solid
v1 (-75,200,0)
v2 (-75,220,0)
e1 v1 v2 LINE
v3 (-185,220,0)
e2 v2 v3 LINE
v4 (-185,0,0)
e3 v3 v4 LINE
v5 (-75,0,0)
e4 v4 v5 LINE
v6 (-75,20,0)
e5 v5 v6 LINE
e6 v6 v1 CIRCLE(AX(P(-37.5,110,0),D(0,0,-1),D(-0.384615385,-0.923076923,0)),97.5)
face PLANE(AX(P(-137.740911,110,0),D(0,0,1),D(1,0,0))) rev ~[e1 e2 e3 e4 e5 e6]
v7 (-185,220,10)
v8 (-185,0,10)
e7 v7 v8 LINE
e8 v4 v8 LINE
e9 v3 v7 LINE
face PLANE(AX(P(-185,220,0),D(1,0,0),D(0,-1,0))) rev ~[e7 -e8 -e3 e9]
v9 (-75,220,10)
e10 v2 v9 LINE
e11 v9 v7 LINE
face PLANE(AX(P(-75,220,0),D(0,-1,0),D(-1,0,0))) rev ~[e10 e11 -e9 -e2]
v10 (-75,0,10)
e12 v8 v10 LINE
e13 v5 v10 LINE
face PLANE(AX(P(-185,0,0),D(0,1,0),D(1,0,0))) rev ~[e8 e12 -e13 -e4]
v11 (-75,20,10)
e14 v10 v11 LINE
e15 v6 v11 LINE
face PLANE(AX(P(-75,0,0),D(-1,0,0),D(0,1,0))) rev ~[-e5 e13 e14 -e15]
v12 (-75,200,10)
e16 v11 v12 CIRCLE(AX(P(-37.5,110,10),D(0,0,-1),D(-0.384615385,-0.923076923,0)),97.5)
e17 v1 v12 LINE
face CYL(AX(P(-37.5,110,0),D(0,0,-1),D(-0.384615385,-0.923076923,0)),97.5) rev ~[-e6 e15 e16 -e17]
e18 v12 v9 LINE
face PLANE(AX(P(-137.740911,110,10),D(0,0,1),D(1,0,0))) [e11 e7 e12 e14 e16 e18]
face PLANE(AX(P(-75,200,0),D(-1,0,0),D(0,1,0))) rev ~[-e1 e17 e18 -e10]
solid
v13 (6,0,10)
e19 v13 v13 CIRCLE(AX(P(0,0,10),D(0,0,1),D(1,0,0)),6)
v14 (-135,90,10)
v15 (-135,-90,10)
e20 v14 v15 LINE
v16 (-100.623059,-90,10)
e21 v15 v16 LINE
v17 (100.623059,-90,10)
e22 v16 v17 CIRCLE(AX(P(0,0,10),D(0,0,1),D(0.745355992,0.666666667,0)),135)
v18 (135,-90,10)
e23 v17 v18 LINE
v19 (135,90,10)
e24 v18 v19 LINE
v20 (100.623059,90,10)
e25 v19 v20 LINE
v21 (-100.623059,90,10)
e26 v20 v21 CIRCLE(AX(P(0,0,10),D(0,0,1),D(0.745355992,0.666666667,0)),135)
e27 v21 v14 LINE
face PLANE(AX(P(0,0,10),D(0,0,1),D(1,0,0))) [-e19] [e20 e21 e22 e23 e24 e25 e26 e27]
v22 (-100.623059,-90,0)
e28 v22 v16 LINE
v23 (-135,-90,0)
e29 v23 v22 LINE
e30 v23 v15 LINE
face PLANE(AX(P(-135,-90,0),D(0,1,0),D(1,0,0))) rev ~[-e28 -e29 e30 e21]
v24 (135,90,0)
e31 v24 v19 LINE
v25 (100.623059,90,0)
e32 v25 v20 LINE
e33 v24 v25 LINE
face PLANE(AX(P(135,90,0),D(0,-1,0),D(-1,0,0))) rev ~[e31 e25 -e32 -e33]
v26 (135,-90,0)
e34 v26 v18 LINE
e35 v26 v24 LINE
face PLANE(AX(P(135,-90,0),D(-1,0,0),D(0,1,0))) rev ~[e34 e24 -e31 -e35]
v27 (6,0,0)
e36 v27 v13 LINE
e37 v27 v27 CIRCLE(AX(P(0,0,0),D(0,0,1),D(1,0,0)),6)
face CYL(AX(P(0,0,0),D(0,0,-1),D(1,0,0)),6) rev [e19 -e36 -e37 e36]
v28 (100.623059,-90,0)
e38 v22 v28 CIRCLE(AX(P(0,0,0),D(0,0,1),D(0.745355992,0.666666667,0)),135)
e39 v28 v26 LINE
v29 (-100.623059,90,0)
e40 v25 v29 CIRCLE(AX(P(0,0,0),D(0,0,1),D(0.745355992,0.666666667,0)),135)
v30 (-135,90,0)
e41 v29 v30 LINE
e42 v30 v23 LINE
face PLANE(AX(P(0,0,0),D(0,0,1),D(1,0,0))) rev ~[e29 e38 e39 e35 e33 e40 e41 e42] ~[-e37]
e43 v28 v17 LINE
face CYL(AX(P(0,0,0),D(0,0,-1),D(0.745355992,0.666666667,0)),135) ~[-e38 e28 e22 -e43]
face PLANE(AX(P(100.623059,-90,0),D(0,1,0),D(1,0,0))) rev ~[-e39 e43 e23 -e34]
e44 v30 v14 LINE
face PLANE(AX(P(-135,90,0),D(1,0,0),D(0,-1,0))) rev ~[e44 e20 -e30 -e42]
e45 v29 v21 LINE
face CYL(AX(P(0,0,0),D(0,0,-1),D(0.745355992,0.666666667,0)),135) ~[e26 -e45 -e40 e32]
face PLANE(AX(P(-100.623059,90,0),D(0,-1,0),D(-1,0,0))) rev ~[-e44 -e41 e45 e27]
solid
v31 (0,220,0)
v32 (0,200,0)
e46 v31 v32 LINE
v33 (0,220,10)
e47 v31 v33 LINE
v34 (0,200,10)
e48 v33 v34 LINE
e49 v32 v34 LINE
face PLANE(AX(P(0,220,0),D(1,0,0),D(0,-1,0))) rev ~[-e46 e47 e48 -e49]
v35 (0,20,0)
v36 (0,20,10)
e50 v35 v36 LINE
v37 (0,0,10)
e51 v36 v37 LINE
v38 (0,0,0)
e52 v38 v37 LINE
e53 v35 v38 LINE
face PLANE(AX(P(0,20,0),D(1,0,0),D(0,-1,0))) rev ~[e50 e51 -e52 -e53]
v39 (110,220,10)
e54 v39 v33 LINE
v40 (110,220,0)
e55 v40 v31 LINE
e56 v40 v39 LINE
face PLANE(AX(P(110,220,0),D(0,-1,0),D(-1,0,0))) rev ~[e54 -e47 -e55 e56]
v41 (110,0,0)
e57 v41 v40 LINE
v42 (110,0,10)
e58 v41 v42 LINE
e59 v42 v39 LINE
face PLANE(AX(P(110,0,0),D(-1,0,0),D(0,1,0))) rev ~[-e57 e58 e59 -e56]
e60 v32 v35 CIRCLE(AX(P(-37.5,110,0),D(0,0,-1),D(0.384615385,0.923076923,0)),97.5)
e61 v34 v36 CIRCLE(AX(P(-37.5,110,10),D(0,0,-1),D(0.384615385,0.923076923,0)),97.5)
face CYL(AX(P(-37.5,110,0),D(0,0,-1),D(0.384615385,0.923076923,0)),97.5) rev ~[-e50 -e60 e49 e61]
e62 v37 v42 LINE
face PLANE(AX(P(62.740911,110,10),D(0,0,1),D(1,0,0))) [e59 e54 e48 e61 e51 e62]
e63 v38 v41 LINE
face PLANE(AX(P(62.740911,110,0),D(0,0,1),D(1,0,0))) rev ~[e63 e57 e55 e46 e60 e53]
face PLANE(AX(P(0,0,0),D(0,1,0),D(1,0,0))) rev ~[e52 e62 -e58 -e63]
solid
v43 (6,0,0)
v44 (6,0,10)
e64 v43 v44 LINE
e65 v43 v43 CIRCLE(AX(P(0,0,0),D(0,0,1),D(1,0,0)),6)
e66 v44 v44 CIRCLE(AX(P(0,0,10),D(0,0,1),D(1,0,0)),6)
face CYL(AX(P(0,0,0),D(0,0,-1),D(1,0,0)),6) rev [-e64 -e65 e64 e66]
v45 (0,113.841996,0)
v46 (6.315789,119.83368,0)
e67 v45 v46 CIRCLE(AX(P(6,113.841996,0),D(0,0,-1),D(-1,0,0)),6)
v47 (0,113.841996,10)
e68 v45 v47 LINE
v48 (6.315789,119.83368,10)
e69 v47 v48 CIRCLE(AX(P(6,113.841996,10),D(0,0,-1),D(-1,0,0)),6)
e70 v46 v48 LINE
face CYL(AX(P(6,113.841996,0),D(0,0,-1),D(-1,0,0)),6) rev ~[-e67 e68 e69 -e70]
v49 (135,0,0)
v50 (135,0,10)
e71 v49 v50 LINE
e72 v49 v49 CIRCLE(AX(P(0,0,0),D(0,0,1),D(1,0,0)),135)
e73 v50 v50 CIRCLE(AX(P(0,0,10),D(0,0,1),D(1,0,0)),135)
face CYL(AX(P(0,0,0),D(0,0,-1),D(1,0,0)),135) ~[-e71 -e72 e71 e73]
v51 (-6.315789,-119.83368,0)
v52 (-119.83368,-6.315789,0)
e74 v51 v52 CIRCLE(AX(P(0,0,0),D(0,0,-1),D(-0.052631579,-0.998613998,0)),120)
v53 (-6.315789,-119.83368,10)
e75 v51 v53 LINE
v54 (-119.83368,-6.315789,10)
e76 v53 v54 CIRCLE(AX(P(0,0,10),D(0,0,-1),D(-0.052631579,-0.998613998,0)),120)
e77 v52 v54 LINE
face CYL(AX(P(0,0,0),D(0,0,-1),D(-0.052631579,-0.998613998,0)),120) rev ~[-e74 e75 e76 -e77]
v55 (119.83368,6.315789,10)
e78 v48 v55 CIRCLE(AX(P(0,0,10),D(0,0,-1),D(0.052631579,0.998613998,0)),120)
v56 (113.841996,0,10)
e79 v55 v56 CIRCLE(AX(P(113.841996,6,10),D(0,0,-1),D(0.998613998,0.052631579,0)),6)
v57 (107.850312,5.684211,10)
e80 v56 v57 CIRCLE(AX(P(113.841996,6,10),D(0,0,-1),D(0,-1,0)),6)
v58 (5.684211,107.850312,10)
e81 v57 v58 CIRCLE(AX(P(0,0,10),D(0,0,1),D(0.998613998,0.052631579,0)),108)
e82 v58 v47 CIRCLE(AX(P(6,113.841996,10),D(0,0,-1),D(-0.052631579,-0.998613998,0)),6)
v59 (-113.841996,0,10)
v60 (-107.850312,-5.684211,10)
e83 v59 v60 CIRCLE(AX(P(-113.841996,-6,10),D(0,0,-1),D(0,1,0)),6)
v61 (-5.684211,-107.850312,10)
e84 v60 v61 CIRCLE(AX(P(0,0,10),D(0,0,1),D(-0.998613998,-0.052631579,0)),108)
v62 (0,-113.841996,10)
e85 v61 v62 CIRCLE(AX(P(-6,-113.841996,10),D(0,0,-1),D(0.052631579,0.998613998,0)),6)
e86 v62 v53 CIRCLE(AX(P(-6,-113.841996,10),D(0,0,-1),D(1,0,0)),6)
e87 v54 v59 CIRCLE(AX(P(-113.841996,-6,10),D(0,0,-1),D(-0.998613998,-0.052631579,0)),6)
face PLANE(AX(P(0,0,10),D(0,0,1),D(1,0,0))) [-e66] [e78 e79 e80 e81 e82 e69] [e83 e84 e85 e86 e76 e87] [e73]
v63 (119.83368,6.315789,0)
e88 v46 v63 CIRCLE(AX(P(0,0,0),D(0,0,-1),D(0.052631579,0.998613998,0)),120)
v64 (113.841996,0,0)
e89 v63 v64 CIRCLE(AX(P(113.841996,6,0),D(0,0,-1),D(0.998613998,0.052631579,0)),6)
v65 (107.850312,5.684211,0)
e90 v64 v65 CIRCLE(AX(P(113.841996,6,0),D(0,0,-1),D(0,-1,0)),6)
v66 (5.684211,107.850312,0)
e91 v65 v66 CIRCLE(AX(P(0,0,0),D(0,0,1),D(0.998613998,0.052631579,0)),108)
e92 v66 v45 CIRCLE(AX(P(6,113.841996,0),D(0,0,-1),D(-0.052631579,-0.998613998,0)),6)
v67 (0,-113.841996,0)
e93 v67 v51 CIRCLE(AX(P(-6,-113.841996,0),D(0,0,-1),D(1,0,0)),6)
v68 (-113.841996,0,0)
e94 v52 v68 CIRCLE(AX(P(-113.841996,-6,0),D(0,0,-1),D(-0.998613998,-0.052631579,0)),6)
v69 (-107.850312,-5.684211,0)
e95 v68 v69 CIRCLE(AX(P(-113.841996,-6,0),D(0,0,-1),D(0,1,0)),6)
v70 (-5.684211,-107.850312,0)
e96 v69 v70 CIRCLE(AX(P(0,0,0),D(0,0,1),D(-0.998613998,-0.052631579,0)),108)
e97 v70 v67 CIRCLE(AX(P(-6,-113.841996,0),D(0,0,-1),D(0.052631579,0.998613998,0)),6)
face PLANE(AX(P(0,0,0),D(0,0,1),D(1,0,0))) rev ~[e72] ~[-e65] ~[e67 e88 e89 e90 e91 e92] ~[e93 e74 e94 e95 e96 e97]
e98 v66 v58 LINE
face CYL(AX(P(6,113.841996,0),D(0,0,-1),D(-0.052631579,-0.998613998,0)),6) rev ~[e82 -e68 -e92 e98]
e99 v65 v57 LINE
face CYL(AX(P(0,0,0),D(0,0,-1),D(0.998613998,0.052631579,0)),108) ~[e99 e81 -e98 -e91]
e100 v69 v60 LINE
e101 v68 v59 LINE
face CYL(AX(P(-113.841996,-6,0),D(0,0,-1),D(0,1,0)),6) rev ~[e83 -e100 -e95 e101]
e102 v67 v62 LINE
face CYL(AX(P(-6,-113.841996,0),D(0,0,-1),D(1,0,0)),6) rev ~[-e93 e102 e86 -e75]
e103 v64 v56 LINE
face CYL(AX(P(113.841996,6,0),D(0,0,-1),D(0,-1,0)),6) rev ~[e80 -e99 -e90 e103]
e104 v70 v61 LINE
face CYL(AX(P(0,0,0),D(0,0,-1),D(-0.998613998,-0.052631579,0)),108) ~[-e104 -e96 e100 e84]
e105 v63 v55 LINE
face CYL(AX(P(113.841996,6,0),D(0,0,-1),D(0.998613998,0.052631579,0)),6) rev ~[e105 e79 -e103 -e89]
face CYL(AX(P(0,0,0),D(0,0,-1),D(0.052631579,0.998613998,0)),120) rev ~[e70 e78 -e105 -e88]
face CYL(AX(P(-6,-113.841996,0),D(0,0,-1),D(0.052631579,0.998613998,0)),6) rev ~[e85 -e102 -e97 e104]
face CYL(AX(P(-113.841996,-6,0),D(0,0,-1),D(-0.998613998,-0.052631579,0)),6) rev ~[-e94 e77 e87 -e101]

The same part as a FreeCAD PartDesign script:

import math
import FreeCAD as App
import Part
import Sketcher

doc = App.newDocument("Part")
body = doc.addObject("PartDesign::Body", "Body")

# Sketch on XY plane
sketch1 = body.newObject("Sketcher::SketchObject", "Sketch")
sketch1.AttachmentSupport = (doc.getObject("XY_Plane"), [""])
sketch1.MapMode = "FlatFace"
sketch1.addGeometry(Part.LineSegment(App.Vector(0, 20, 0), App.Vector(0, 0, 0)), False)
sketch1.addGeometry(Part.LineSegment(App.Vector(0, 0, 0), App.Vector(110, 0, 0)), False)
sketch1.addGeometry(Part.LineSegment(App.Vector(110, 0, 0), App.Vector(110, 220, 0)), False)
sketch1.addGeometry(Part.LineSegment(App.Vector(110, 220, 0), App.Vector(0, 220, 0)), False)
sketch1.addGeometry(Part.LineSegment(App.Vector(0, 220, 0), App.Vector(0, 200, 0)), False)
sketch1.addGeometry(Part.ArcOfCircle(Part.Circle(App.Vector(-38, 110, 0), App.Vector(0, 0, 1), 98), math.radians(-67), math.radians(67)), False)
sketch1.addConstraint(Sketcher.Constraint("Coincident", 0, 2, 1, 1))
sketch1.addConstraint(Sketcher.Constraint("Coincident", 1, 2, 2, 1))
sketch1.addConstraint(Sketcher.Constraint("Coincident", 2, 2, 3, 1))
sketch1.addConstraint(Sketcher.Constraint("Coincident", 3, 2, 4, 1))
sketch1.addConstraint(Sketcher.Constraint("Coincident", 4, 2, 5, 2))
sketch1.addConstraint(Sketcher.Constraint("Coincident", 5, 1, 0, 1))
sketch1.addConstraint(Sketcher.Constraint("Vertical", 0))
sketch1.addConstraint(Sketcher.Constraint("Horizontal", 1))
sketch1.addConstraint(Sketcher.Constraint("Vertical", 2))
sketch1.addConstraint(Sketcher.Constraint("Horizontal", 3))
sketch1.addConstraint(Sketcher.Constraint("Vertical", 4))
sketch1.addConstraint(Sketcher.Constraint("Coincident", 0, 2, -1, 1))
sketch1.addConstraint(Sketcher.Constraint("PointOnObject", 3, 2, -2))
sketch1.addConstraint(Sketcher.Constraint("Equal", 0, 4))
sketch1.addConstraint(Sketcher.Constraint("Radius", 5, 97.5))
sketch1.addConstraint(Sketcher.Constraint("DistanceX", 1, 1, 1, 2, 110.0))
sketch1.addConstraint(Sketcher.Constraint("DistanceY", 0, 2, 0, 1, 20.0))
sketch1.addConstraint(Sketcher.Constraint("DistanceY", 2, 1, 2, 2, 220.0))
pad1 = body.newObject("PartDesign::Pad", "Pad")
pad1.Profile = sketch1
pad1.Length = 10
body2 = doc.addObject("PartDesign::Body", "Body001")

# Sketch on XY plane
sketch2 = body2.newObject("Sketcher::SketchObject", "Sketch001")
sketch2.AttachmentSupport = (doc.getObject("XY_Plane001"), [""])
sketch2.MapMode = "FlatFace"
sketch2.addGeometry(Part.LineSegment(App.Vector(-75, 0, 0), App.Vector(-75, 20, 0)), False)
sketch2.addGeometry(Part.ArcOfCircle(Part.Circle(App.Vector(-38, 110, 0), App.Vector(0, 0, 1), 98), math.radians(113), math.radians(247)), False)
sketch2.addGeometry(Part.LineSegment(App.Vector(-75, 200, 0), App.Vector(-75, 220, 0)), False)
sketch2.addGeometry(Part.LineSegment(App.Vector(-75, 220, 0), App.Vector(-185, 220, 0)), False)
sketch2.addGeometry(Part.LineSegment(App.Vector(-185, 220, 0), App.Vector(-185, 0, 0)), False)
sketch2.addGeometry(Part.LineSegment(App.Vector(-185, 0, 0), App.Vector(-75, 0, 0)), False)
sketch2.addConstraint(Sketcher.Constraint("Coincident", 0, 2, 1, 2))
sketch2.addConstraint(Sketcher.Constraint("Coincident", 1, 1, 2, 1))
sketch2.addConstraint(Sketcher.Constraint("Coincident", 2, 2, 3, 1))
sketch2.addConstraint(Sketcher.Constraint("Coincident", 3, 2, 4, 1))
sketch2.addConstraint(Sketcher.Constraint("Coincident", 4, 2, 5, 1))
sketch2.addConstraint(Sketcher.Constraint("Coincident", 5, 2, 0, 1))
sketch2.addConstraint(Sketcher.Constraint("Vertical", 0))
sketch2.addConstraint(Sketcher.Constraint("Vertical", 2))
sketch2.addConstraint(Sketcher.Constraint("Horizontal", 3))
sketch2.addConstraint(Sketcher.Constraint("Vertical", 4))
sketch2.addConstraint(Sketcher.Constraint("Horizontal", 5))
sketch2.addConstraint(Sketcher.Constraint("PointOnObject", 4, 2, -1))
sketch2.addConstraint(Sketcher.Constraint("Vertical", 0, 2, 1, 1))
sketch2.addConstraint(Sketcher.Constraint("Equal", 0, 2))
sketch2.addConstraint(Sketcher.Constraint("Radius", 1, 97.5))
sketch2.addConstraint(Sketcher.Constraint("DistanceX", 3, 2, 3, 1, 110.0))
sketch2.addConstraint(Sketcher.Constraint("DistanceY", 0, 1, 0, 2, 20.0))
sketch2.addConstraint(Sketcher.Constraint("DistanceY", 4, 2, 4, 1, 220.0))
sketch2.addConstraint(Sketcher.Constraint("DistanceX", 0, 2, -1, 1, 75.0))
pad2 = body2.newObject("PartDesign::Pad", "Pad001")
pad2.Profile = sketch2
pad2.Length = 10
body3 = doc.addObject("PartDesign::Body", "Body002")

# Sketch on XY plane
sketch3 = body3.newObject("Sketcher::SketchObject", "Sketch002")
sketch3.AttachmentSupport = (doc.getObject("XY_Plane002"), [""])
sketch3.MapMode = "FlatFace"
sketch3.addGeometry(Part.Circle(App.Vector(0, 0, 0), App.Vector(0, 0, 1), 135), False)
sketch3.addGeometry(Part.ArcOfCircle(Part.Circle(App.Vector(-114, -6, 0), App.Vector(0, 0, 1), 6), math.radians(3), math.radians(90)), False)
sketch3.addGeometry(Part.ArcOfCircle(Part.Circle(App.Vector(0, 0, 0), App.Vector(0, 0, 1), 108), math.radians(-177), math.radians(-93)), False)
sketch3.addGeometry(Part.ArcOfCircle(Part.Circle(App.Vector(-6, -114, 0), App.Vector(0, 0, 1), 6), math.radians(0), math.radians(87)), False)
sketch3.addGeometry(Part.ArcOfCircle(Part.Circle(App.Vector(-6, -114, 0), App.Vector(0, 0, 1), 6), math.radians(-93), math.radians(0)), False)
sketch3.addGeometry(Part.ArcOfCircle(Part.Circle(App.Vector(0, 0, 0), App.Vector(0, 0, 1), 120), math.radians(-177), math.radians(-93)), False)
sketch3.addGeometry(Part.ArcOfCircle(Part.Circle(App.Vector(-114, -6, 0), App.Vector(0, 0, 1), 6), math.radians(90), math.radians(183)), False)
sketch3.addGeometry(Part.Circle(App.Vector(0, 0, 0), App.Vector(0, 0, 1), 6), False)
sketch3.addGeometry(Part.ArcOfCircle(Part.Circle(App.Vector(6, 114, 0), App.Vector(0, 0, 1), 6), math.radians(87), math.radians(180)), False)
sketch3.addGeometry(Part.ArcOfCircle(Part.Circle(App.Vector(0, 0, 0), App.Vector(0, 0, 1), 120), math.radians(3), math.radians(87)), False)
sketch3.addGeometry(Part.ArcOfCircle(Part.Circle(App.Vector(114, 6, 0), App.Vector(0, 0, 1), 6), math.radians(-90), math.radians(3)), False)
sketch3.addGeometry(Part.ArcOfCircle(Part.Circle(App.Vector(114, 6, 0), App.Vector(0, 0, 1), 6), math.radians(-177), math.radians(-90)), False)
sketch3.addGeometry(Part.ArcOfCircle(Part.Circle(App.Vector(0, 0, 0), App.Vector(0, 0, 1), 108), math.radians(3), math.radians(87)), False)
sketch3.addGeometry(Part.ArcOfCircle(Part.Circle(App.Vector(6, 114, 0), App.Vector(0, 0, 1), 6), math.radians(180), math.radians(267)), False)
sketch3.addConstraint(Sketcher.Constraint("Tangent", 1, 1, 2, 1))
sketch3.addConstraint(Sketcher.Constraint("Tangent", 2, 2, 3, 2))
sketch3.addConstraint(Sketcher.Constraint("Tangent", 3, 1, 4, 2))
sketch3.addConstraint(Sketcher.Constraint("Tangent", 4, 1, 5, 2))
sketch3.addConstraint(Sketcher.Constraint("Tangent", 5, 1, 6, 2))
sketch3.addConstraint(Sketcher.Constraint("Tangent", 6, 1, 1, 2))
sketch3.addConstraint(Sketcher.Constraint("Tangent", 8, 1, 9, 2))
sketch3.addConstraint(Sketcher.Constraint("Tangent", 9, 1, 10, 2))
sketch3.addConstraint(Sketcher.Constraint("Tangent", 10, 1, 11, 2))
sketch3.addConstraint(Sketcher.Constraint("Tangent", 11, 1, 12, 1))
sketch3.addConstraint(Sketcher.Constraint("Tangent", 12, 2, 13, 2))
sketch3.addConstraint(Sketcher.Constraint("Tangent", 13, 1, 8, 2))
sketch3.addConstraint(Sketcher.Constraint("Coincident", 0, 3, -1, 1))
sketch3.addConstraint(Sketcher.Constraint("Coincident", 2, 3, -1, 1))
sketch3.addConstraint(Sketcher.Constraint("Coincident", 5, 3, -1, 1))
sketch3.addConstraint(Sketcher.Constraint("Coincident", 7, 3, -1, 1))
sketch3.addConstraint(Sketcher.Constraint("Coincident", 9, 3, -1, 1))
sketch3.addConstraint(Sketcher.Constraint("Coincident", 12, 3, -1, 1))
sketch3.addConstraint(Sketcher.Constraint("Equal", 1, 3))
sketch3.addConstraint(Sketcher.Constraint("Equal", 3, 4))
sketch3.addConstraint(Sketcher.Constraint("Equal", 6, 7))
sketch3.addConstraint(Sketcher.Constraint("Equal", 7, 8))
sketch3.addConstraint(Sketcher.Constraint("Equal", 5, 9))
sketch3.addConstraint(Sketcher.Constraint("Equal", 8, 10))
sketch3.addConstraint(Sketcher.Constraint("Equal", 10, 11))
sketch3.addConstraint(Sketcher.Constraint("Symmetric", 6, 1, 10, 1, -1, 1))
sketch3.addConstraint(Sketcher.Constraint("Symmetric", 3, 1, 13, 1, -1, 1))
sketch3.addConstraint(Sketcher.Constraint("PointOnObject", 3, 1, -2))
sketch3.addConstraint(Sketcher.Constraint("PointOnObject", 6, 1, -1))
sketch3.addConstraint(Sketcher.Constraint("Horizontal", 4, 3, 3, 1))
sketch3.addConstraint(Sketcher.Constraint("Vertical", 1, 3, 6, 1))
sketch3.addConstraint(Sketcher.Constraint("Diameter", 0, 270.0))
sketch3.addConstraint(Sketcher.Constraint("Diameter", 7, 12.0))
sketch3.addConstraint(Sketcher.Constraint("Radius", 2, 108.0))
pad3 = body3.newObject("PartDesign::Pad", "Pad002")
pad3.Profile = sketch3
pad3.Length = 10
body4 = doc.addObject("PartDesign::Body", "Body003")

# Sketch on XY plane
sketch4 = body4.newObject("Sketcher::SketchObject", "Sketch003")
sketch4.AttachmentSupport = (doc.getObject("XY_Plane003"), [""])
sketch4.MapMode = "FlatFace"
sketch4.addGeometry(Part.LineSegment(App.Vector(135, 90, 0), App.Vector(101, 90, 0)), False)
sketch4.addGeometry(Part.ArcOfCircle(Part.Circle(App.Vector(0, 0, 0), App.Vector(0, 0, 1), 135), math.radians(42), math.radians(138)), False)
sketch4.addGeometry(Part.LineSegment(App.Vector(-101, 90, 0), App.Vector(-135, 90, 0)), False)
sketch4.addGeometry(Part.LineSegment(App.Vector(-135, 90, 0), App.Vector(-135, -90, 0)), False)
sketch4.addGeometry(Part.LineSegment(App.Vector(-135, -90, 0), App.Vector(-101, -90, 0)), False)
sketch4.addGeometry(Part.ArcOfCircle(Part.Circle(App.Vector(0, 0, 0), App.Vector(0, 0, 1), 135), math.radians(-138), math.radians(-42)), False)
sketch4.addGeometry(Part.LineSegment(App.Vector(101, -90, 0), App.Vector(135, -90, 0)), False)
sketch4.addGeometry(Part.LineSegment(App.Vector(135, -90, 0), App.Vector(135, 90, 0)), False)
sketch4.addGeometry(Part.Circle(App.Vector(0, 0, 0), App.Vector(0, 0, 1), 6), False)
sketch4.addConstraint(Sketcher.Constraint("Coincident", 0, 2, 1, 1))
sketch4.addConstraint(Sketcher.Constraint("Coincident", 1, 2, 2, 1))
sketch4.addConstraint(Sketcher.Constraint("Coincident", 2, 2, 3, 1))
sketch4.addConstraint(Sketcher.Constraint("Coincident", 3, 2, 4, 1))
sketch4.addConstraint(Sketcher.Constraint("Coincident", 4, 2, 5, 1))
sketch4.addConstraint(Sketcher.Constraint("Coincident", 5, 2, 6, 1))
sketch4.addConstraint(Sketcher.Constraint("Coincident", 6, 2, 7, 1))
sketch4.addConstraint(Sketcher.Constraint("Coincident", 7, 2, 0, 1))
sketch4.addConstraint(Sketcher.Constraint("Horizontal", 0))
sketch4.addConstraint(Sketcher.Constraint("Horizontal", 2))
sketch4.addConstraint(Sketcher.Constraint("Vertical", 3))
sketch4.addConstraint(Sketcher.Constraint("Horizontal", 4))
sketch4.addConstraint(Sketcher.Constraint("Horizontal", 6))
sketch4.addConstraint(Sketcher.Constraint("Vertical", 7))
sketch4.addConstraint(Sketcher.Constraint("Coincident", 1, 3, -1, 1))
sketch4.addConstraint(Sketcher.Constraint("Coincident", 5, 3, -1, 1))
sketch4.addConstraint(Sketcher.Constraint("Coincident", 8, 3, -1, 1))
sketch4.addConstraint(Sketcher.Constraint("Equal", 1, 5))
sketch4.addConstraint(Sketcher.Constraint("Symmetric", 2, 2, 6, 2, -1, 1))
sketch4.addConstraint(Sketcher.Constraint("Horizontal", 0, 2, 1, 2))
sketch4.addConstraint(Sketcher.Constraint("Horizontal", 4, 2, 5, 2))
sketch4.addConstraint(Sketcher.Constraint("Diameter", 8, 12.0))
sketch4.addConstraint(Sketcher.Constraint("Radius", 1, 135.0))
sketch4.addConstraint(Sketcher.Constraint("DistanceY", 3, 2, 3, 1, 180.0))
sketch4.addConstraint(Sketcher.Constraint("DistanceX", 2, 2, -1, 1, 135.0))
pad4 = body4.newObject("PartDesign::Pad", "Pad003")
pad4.Profile = sketch4
pad4.Length = 10

doc.recompute()
